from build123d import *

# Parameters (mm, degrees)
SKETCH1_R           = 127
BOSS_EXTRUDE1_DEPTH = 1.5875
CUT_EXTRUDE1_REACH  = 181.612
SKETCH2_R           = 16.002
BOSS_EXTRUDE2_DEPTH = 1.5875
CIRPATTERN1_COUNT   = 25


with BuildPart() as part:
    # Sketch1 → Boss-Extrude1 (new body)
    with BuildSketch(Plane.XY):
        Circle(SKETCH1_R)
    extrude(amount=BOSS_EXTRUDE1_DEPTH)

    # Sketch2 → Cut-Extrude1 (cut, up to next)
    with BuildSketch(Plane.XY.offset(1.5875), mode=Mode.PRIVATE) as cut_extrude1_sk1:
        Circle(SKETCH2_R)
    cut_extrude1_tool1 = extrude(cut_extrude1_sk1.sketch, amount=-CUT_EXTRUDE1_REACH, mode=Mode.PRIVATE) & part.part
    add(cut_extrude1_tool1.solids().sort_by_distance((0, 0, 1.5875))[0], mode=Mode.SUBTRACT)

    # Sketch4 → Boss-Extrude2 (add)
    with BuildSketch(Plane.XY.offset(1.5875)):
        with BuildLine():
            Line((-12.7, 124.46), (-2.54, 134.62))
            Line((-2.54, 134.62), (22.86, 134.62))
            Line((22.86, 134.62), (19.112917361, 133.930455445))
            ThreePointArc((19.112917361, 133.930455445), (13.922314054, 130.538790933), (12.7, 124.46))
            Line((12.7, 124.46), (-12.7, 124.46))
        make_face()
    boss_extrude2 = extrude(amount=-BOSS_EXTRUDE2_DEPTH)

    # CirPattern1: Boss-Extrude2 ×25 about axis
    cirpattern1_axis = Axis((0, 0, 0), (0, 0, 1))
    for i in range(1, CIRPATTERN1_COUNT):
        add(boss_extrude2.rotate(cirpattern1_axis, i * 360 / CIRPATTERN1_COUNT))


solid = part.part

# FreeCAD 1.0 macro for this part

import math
import FreeCAD as App
import Part
import Sketcher

V = App.Vector
Q = App.Units.Quantity

doc = App.newDocument("Part")
body = doc.addObject("PartDesign::Body", "Body")

# Sketch on XY plane
sketch1 = body.newObject("Sketcher::SketchObject", "Sketch")
sketch1.AttachmentSupport = (doc.getObject("XY_Plane"), [""])
sketch1.MapMode = "FlatFace"
sketch1.addGeometry(Part.Circle(V(0, 0, 0), V(0, 0, 1), 127), False)
sketch1.addConstraint(Sketcher.Constraint("Coincident", 0, 3, -1, 1))
sketch1.addConstraint(Sketcher.Constraint("Diameter", 0, Q("10 in")))
pad1 = body.newObject("PartDesign::Pad", "Pad")
pad1.Profile = sketch1
pad1.Length = Q("0.0625 in")

# Sketch on XY plane
sketch2 = body.newObject("Sketcher::SketchObject", "Sketch001")
sketch2.AttachmentSupport = (doc.getObject("XY_Plane"), [""])
sketch2.MapMode = "FlatFace"
sketch2.AttachmentOffset = App.Placement(V(0, 0, 0.0625 * 25.4), App.Rotation())
sketch2.addGeometry(Part.Circle(V(0, 0, 0), V(0, 0, 1), 16), False)
sketch2.addConstraint(Sketcher.Constraint("Coincident", 0, 3, -1, 1))
sketch2.addConstraint(Sketcher.Constraint("Diameter", 0, Q("1.26 in")))
pocket1 = body.newObject("PartDesign::Pocket", "Pocket")
pocket1.Profile = sketch2
pocket1.Type = "UpToFirst"

# Sketch on XY plane
sketch3 = body.newObject("Sketcher::SketchObject", "Sketch002")
sketch3.AttachmentSupport = (doc.getObject("XY_Plane"), [""])
sketch3.MapMode = "FlatFace"
sketch3.AttachmentOffset = App.Placement(V(0, 0, 0.0625 * 25.4), App.Rotation())
sketch3.addGeometry(Part.LineSegment(V(-2.5, 134.6, 0), V(-12.7, 124.5, 0)), False)
sketch3.addGeometry(Part.LineSegment(V(-12.7, 124.5, 0), V(12.7, 124.5, 0)), False)
sketch3.addGeometry(Part.ArcOfCircle(Part.Circle(V(20.6, 126, 0), V(0, 0, 1), 8), math.radians(100), math.radians(191)), False)
sketch3.addGeometry(Part.LineSegment(V(19.1, 133.9, 0), V(22.9, 134.6, 0)), False)
sketch3.addGeometry(Part.LineSegment(V(22.9, 134.6, 0), V(-2.5, 134.6, 0)), False)
sketch3.addConstraint(Sketcher.Constraint("Coincident", 0, 2, 1, 1))
sketch3.addConstraint(Sketcher.Constraint("Coincident", 1, 2, 2, 2))
sketch3.addConstraint(Sketcher.Constraint("Tangent", 2, 1, 3, 1))
sketch3.addConstraint(Sketcher.Constraint("Coincident", 3, 2, 4, 1))
sketch3.addConstraint(Sketcher.Constraint("Coincident", 4, 2, 0, 1))
sketch3.addConstraint(Sketcher.Constraint("Horizontal", 1))
sketch3.addConstraint(Sketcher.Constraint("Horizontal", 4))
sketch3.addConstraint(Sketcher.Constraint("Equal", 1, 4))
sketch3.addConstraint(Sketcher.Constraint("DistanceX", 1, 1, 1, 2, Q("1 in")))
sketch3.addConstraint(Sketcher.Constraint("Angle", 0, Q("-135 deg")))
sketch3.addConstraint(Sketcher.Constraint("DistanceX", 0, 2, -1, 1, Q("0.5 in")))
sketch3.addConstraint(Sketcher.Constraint("DistanceY", -1, 1, 0, 2, Q("4.9 in")))
sketch3.addConstraint(Sketcher.Constraint("DistanceX", -1, 1, 3, 2, Q("0.9 in")))
sketch3.addConstraint(Sketcher.Constraint("Distance", 3, Q("0.15 in")))
sketch3.addConstraint(Sketcher.Constraint("Radius", 2, Q("8.022081 mm")))
pad2 = body.newObject("PartDesign::Pad", "Pad001")
pad2.Profile = sketch3
pad2.Length = Q("0.0625 in")
pad2.Reversed = True
doc.recompute()

polarpattern = body.newObject("PartDesign::PolarPattern", "PolarPattern")
polarpattern.Originals = [pad2]
polarpattern.Axis = (doc.getObject("Z_Axis"), [""])
polarpattern.Angle = 360
polarpattern.Occurrences = 25
body.Tip = polarpattern

doc.recompute()
